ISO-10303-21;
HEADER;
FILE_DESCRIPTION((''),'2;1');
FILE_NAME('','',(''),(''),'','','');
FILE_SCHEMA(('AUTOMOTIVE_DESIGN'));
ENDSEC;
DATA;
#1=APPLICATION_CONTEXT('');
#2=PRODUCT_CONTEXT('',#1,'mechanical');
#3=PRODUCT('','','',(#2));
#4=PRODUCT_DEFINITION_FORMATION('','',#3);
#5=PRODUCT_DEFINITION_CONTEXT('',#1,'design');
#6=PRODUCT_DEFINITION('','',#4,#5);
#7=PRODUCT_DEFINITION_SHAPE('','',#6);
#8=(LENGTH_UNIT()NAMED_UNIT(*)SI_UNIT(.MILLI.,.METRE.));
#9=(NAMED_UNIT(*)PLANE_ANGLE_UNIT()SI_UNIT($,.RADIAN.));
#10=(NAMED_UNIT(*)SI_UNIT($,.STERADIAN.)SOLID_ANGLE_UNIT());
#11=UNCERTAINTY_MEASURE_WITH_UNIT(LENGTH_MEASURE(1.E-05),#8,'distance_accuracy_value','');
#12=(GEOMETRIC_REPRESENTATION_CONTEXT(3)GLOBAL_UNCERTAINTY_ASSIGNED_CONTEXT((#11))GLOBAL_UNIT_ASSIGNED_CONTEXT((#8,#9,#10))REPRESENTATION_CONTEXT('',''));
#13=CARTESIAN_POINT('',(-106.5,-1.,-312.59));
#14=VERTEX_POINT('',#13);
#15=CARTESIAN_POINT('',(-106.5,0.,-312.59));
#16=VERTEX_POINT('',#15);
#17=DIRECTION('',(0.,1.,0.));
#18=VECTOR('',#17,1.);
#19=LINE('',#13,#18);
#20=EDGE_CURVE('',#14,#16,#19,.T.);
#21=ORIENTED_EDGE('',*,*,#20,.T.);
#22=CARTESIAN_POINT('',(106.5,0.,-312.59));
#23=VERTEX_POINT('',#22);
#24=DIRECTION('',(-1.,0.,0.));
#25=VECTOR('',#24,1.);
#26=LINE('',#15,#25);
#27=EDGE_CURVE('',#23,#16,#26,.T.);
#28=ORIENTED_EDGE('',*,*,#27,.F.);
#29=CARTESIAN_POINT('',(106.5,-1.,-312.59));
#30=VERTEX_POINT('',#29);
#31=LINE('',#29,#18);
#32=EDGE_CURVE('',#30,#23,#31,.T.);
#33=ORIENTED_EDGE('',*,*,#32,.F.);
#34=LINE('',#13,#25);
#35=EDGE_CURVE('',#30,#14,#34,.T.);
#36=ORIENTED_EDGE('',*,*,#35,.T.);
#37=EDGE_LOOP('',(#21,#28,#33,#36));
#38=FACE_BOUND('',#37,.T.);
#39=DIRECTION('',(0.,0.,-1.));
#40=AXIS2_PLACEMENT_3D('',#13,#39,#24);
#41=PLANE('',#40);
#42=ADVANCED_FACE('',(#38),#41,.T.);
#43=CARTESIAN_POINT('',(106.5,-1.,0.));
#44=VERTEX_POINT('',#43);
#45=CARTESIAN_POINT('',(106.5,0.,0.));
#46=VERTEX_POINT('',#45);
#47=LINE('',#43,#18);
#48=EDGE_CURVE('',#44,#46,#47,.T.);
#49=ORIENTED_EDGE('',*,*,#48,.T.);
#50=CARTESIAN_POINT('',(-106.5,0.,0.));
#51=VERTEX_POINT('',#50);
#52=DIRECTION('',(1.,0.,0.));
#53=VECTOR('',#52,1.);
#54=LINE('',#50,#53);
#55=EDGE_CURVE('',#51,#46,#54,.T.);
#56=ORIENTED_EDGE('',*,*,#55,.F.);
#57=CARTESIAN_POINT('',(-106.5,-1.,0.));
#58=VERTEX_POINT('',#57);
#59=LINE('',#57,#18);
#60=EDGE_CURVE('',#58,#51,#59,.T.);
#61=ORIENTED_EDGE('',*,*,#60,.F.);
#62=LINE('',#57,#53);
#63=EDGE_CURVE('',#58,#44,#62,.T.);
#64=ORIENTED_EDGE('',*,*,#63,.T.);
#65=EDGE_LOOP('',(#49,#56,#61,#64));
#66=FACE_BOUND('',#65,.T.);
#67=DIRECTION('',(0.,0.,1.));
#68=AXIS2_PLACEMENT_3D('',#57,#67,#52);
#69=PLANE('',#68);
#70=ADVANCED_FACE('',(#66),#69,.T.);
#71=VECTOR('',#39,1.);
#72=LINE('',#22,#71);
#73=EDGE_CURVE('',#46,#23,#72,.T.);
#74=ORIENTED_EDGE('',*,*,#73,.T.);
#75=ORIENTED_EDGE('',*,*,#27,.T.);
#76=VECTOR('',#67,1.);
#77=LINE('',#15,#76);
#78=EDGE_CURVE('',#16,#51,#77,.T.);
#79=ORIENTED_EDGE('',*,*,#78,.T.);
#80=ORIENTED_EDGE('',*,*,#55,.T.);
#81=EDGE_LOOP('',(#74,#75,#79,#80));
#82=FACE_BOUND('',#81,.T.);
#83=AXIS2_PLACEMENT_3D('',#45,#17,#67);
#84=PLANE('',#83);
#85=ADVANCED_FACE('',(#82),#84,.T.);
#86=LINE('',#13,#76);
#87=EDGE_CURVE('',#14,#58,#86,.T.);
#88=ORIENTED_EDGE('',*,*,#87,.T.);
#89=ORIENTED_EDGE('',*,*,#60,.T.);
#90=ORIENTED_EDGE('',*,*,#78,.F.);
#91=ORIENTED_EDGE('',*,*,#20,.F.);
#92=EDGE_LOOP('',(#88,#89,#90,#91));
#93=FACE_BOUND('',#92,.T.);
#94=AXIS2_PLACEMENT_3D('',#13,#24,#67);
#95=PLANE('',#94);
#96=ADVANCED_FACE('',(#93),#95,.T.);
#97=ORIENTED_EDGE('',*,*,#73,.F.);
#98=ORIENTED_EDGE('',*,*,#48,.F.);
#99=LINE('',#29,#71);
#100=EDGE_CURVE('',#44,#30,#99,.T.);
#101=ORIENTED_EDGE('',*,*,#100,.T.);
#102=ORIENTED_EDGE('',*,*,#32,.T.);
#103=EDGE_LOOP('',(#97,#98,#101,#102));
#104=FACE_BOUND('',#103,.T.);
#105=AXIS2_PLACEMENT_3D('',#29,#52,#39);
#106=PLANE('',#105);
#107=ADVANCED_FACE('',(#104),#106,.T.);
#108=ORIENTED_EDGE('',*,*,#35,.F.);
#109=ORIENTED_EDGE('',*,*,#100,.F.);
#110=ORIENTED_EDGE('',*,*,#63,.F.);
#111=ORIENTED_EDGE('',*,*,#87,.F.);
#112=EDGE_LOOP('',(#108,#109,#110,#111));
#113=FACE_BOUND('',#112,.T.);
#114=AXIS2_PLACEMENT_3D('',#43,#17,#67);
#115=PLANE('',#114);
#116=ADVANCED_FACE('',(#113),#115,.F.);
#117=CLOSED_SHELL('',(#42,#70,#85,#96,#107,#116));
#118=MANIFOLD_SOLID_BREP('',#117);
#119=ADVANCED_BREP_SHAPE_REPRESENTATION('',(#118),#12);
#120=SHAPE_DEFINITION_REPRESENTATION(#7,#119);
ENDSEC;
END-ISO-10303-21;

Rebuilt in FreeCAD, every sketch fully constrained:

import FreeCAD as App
import Part
import Sketcher

V = App.Vector
Q = App.Units.Quantity

doc = App.newDocument("Part")
body = doc.addObject("PartDesign::Body", "Body")

# Sketch on XZ plane
sketch1 = body.newObject("Sketcher::SketchObject", "Sketch")
sketch1.AttachmentSupport = (doc.getObject("XZ_Plane"), [""])
sketch1.MapMode = "FlatFace"
sketch1.addGeometry([
    Part.LineSegment(V(-106, -313, 0), V(-106, 0, 0)),
    Part.LineSegment(V(-106, 0, 0), V(106, 0, 0)),
    Part.LineSegment(V(106, 0, 0), V(106, -313, 0)),
    Part.LineSegment(V(106, -313, 0), V(-106, -313, 0)),
], False)
sketch1.addConstraint([
    Sketcher.Constraint("Coincident", 0, 2, 1, 1),
    Sketcher.Constraint("Coincident", 1, 2, 2, 1),
    Sketcher.Constraint("Coincident", 2, 2, 3, 1),
    Sketcher.Constraint("Coincident", 3, 2, 0, 1),
    Sketcher.Constraint("Vertical", 0),
    Sketcher.Constraint("Horizontal", 1),
    Sketcher.Constraint("Vertical", 2),
    Sketcher.Constraint("Horizontal", 3),
    Sketcher.Constraint("Symmetric", 0, 2, 1, 2, -1, 1),
    Sketcher.Constraint("DistanceX", 1, 1, 1, 2, Q("213 mm")),
    Sketcher.Constraint("DistanceY", 0, 1, 0, 2, Q("312.59 mm")),
])
pad1 = body.newObject("PartDesign::Pad", "Pad")
pad1.Profile = sketch1
pad1.Length = 1

doc.recompute()
